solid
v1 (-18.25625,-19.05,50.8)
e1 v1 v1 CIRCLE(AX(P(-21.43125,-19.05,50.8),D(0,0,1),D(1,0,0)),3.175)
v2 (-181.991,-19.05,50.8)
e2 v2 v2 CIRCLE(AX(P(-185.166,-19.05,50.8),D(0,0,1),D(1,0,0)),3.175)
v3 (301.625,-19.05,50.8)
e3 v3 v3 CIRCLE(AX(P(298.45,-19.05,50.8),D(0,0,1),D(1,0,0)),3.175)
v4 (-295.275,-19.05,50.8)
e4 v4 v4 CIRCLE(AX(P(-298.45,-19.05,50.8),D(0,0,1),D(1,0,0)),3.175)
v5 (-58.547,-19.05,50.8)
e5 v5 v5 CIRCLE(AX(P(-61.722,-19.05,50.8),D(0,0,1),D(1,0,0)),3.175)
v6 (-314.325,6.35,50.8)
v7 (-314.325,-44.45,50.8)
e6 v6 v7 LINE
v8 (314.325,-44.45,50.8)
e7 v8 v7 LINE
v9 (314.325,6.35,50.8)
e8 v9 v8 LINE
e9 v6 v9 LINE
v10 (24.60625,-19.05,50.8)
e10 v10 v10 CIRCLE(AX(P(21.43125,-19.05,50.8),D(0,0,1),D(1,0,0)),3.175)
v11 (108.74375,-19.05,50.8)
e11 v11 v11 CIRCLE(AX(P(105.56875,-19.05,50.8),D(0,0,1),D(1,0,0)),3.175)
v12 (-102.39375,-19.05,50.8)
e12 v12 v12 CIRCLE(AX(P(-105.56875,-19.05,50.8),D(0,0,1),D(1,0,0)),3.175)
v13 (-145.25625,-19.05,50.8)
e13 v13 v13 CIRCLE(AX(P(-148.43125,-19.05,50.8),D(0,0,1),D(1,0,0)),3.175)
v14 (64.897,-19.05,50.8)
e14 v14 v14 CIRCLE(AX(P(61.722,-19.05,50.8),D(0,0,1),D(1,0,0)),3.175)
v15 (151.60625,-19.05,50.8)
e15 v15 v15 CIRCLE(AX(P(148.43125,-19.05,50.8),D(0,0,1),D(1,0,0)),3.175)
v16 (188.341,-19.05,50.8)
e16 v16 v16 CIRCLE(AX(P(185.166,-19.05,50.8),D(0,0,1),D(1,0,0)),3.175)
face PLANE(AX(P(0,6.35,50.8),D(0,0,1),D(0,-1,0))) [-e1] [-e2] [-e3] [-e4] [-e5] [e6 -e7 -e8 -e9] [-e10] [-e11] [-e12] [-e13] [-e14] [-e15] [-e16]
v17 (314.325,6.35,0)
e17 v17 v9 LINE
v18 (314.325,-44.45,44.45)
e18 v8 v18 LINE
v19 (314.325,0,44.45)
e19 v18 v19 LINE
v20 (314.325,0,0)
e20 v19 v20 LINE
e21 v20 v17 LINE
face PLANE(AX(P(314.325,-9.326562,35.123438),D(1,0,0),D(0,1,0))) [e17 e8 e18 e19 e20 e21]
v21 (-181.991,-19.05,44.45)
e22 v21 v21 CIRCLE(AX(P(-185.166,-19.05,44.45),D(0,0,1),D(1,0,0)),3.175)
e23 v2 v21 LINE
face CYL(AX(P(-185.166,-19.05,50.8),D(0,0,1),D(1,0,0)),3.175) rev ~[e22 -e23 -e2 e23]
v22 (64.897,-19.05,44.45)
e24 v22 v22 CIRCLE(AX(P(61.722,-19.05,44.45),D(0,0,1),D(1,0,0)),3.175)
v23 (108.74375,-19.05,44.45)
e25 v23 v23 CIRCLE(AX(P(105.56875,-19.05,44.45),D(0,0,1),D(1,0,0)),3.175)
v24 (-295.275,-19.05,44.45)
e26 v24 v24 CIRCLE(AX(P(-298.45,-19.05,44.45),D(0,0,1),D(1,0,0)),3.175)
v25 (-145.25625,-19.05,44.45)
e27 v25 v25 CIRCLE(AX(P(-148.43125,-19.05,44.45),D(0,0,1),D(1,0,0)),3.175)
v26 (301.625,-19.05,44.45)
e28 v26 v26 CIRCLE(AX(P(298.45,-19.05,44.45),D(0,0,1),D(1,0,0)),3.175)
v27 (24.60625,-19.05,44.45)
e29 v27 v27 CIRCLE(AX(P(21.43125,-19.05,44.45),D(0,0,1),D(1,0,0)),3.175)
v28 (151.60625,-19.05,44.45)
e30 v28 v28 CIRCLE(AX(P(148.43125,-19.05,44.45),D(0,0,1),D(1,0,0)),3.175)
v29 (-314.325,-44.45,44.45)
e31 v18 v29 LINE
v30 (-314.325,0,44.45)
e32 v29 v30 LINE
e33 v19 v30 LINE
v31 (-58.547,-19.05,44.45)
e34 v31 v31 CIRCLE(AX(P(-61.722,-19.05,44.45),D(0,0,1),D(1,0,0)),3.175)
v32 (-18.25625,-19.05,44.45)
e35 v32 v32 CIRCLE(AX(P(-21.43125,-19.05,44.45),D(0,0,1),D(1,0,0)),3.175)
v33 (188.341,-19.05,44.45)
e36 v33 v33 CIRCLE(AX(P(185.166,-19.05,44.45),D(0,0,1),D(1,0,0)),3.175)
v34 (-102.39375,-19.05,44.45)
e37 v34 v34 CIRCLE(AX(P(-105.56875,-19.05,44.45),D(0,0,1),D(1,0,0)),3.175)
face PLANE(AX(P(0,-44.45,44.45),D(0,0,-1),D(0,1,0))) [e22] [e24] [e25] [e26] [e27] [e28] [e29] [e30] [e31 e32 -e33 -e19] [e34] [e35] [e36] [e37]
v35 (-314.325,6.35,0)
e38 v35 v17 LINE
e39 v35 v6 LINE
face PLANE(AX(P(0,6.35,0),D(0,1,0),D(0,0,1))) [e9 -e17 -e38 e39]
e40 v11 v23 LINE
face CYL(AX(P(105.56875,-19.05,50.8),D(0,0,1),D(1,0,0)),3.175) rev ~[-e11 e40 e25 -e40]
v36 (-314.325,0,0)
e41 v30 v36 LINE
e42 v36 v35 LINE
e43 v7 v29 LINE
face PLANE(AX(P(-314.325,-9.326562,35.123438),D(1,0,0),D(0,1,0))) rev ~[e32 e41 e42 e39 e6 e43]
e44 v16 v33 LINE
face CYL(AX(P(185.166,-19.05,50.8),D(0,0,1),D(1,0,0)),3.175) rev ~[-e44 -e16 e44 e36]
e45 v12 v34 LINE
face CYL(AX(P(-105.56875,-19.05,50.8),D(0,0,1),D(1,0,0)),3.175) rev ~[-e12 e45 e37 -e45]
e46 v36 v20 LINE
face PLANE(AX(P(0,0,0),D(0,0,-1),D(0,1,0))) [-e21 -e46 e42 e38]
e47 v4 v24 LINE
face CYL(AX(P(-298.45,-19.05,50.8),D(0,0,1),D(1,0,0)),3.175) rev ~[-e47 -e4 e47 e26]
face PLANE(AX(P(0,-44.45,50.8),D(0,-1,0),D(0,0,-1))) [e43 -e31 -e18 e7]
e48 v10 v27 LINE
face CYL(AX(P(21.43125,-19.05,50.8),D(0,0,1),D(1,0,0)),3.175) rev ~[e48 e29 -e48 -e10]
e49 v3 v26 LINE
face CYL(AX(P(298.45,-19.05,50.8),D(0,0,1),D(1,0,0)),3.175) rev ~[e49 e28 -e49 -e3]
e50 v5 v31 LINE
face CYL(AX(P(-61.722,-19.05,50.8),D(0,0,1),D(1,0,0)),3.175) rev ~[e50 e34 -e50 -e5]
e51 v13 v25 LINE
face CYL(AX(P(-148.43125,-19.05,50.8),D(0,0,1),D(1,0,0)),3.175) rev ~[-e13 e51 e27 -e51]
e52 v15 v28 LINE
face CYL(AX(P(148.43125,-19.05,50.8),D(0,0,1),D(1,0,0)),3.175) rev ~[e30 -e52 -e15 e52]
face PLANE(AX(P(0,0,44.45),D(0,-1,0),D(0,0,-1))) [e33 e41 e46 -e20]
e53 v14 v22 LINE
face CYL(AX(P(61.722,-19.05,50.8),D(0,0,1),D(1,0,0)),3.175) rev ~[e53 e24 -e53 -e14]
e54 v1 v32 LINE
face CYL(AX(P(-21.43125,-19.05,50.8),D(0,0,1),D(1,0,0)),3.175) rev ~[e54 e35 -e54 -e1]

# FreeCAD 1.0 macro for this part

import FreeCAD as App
import Part
import Sketcher

V = App.Vector
Q = App.Units.Quantity

doc = App.newDocument("Part")
body = doc.addObject("PartDesign::Body", "Body")

sketch1 = body.newObject("Sketcher::SketchObject", "Sketch")
sketch1.AttachmentSupport = (doc.getObject("YZ_Plane"), [""])
sketch1.MapMode = "FlatFace"
sketch1.addGeometry([
    Part.LineSegment(V(0, 44, 0), V(0, 0, 0)),
    Part.LineSegment(V(0, 0, 0), V(6, 0, 0)),
    Part.LineSegment(V(6, 0, 0), V(6, 51, 0)),
    Part.LineSegment(V(6, 51, 0), V(-44, 51, 0)),
    Part.LineSegment(V(-44, 51, 0), V(-44, 44, 0)),
    Part.LineSegment(V(-44, 44, 0), V(0, 44, 0)),
], False)
sketch1.addConstraint([
    Sketcher.Constraint("Coincident", 0, 2, 1, 1),
    Sketcher.Constraint("Coincident", 1, 2, 2, 1),
    Sketcher.Constraint("Coincident", 2, 2, 3, 1),
    Sketcher.Constraint("Coincident", 3, 2, 4, 1),
    Sketcher.Constraint("Coincident", 4, 2, 5, 1),
    Sketcher.Constraint("Coincident", 5, 2, 0, 1),
    Sketcher.Constraint("Vertical", 0),
    Sketcher.Constraint("Horizontal", 1),
    Sketcher.Constraint("Vertical", 2),
    Sketcher.Constraint("Horizontal", 3),
    Sketcher.Constraint("Vertical", 4),
    Sketcher.Constraint("Horizontal", 5),
    Sketcher.Constraint("Coincident", 0, 2, -1, 1),
    Sketcher.Constraint("Equal", 5, 0),
    Sketcher.Constraint("Equal", 3, 2),
    Sketcher.Constraint("DistanceX", 3, 2, 3, 1, Q("2 in")),
    Sketcher.Constraint("DistanceX", 1, 1, 1, 2, Q("0.25 in")),
])
pad1 = body.newObject("PartDesign::Pad", "Pad")
pad1.Profile = sketch1
pad1.Length = Q("24.75 in")
pad1.Midplane = True

sketch2 = body.newObject("Sketcher::SketchObject", "Sketch001")
sketch2.AttachmentSupport = (doc.getObject("XY_Plane"), [""])
sketch2.MapMode = "FlatFace"
sketch2.AttachmentOffset = App.Placement(V(0, 0, 2 * 25.4), App.Rotation())
sketch2.addGeometry([
    Part.Circle(V(-298.4, -19.1, 0), V(0, 0, 1), 3.2),
    Part.Circle(V(-105.6, -19.1, 0), V(0, 0, 1), 3.2),
    Part.Circle(V(298.4, -19.1, 0), V(0, 0, 1), 3.2),
    Part.Circle(V(-148.4, -19.1, 0), V(0, 0, 1), 3.2),
    Part.Circle(V(-21.4, -19.1, 0), V(0, 0, 1), 3.2),
    Part.Circle(V(21.4, -19.1, 0), V(0, 0, 1), 3.2),
    Part.Circle(V(105.6, -19.1, 0), V(0, 0, 1), 3.2),
    Part.Circle(V(148.4, -19.1, 0), V(0, 0, 1), 3.2),
], False)
sketch2.addConstraint([
    Sketcher.Constraint("Equal", 0, 1),
    Sketcher.Constraint("Equal", 1, 2),
    Sketcher.Constraint("Equal", 2, 3),
    Sketcher.Constraint("Equal", 3, 4),
    Sketcher.Constraint("Equal", 4, 5),
    Sketcher.Constraint("Equal", 5, 6),
    Sketcher.Constraint("Equal", 6, 7),
    Sketcher.Constraint("Symmetric", 0, 3, 2, 3, -2),
    Sketcher.Constraint("Symmetric", 4, 3, 5, 3, -2),
    Sketcher.Constraint("Symmetric", 1, 3, 6, 3, -2),
    Sketcher.Constraint("Symmetric", 3, 3, 7, 3, -2),
    Sketcher.Constraint("Horizontal", 0, 3, 1, 3),
    Sketcher.Constraint("Horizontal", 2, 3, 3, 3),
    Sketcher.Constraint("Horizontal", 3, 3, 4, 3),
    Sketcher.Constraint("Diameter", 0, Q("0.25 in")),
    Sketcher.Constraint("DistanceX", 3, 3, 4, 3, Q("5 in")),
    Sketcher.Constraint("DistanceX", 1, 3, 5, 3, Q("5 in")),
    Sketcher.Constraint("DistanceX", 0, 3, 2, 3, Q("23.5 in")),
    Sketcher.Constraint("DistanceY", 0, 3, -1, 1, Q("0.75 in")),
    Sketcher.Constraint("DistanceX", 1, 3, -1, 1, Q("4.15625 in")),
])
pocket1 = body.newObject("PartDesign::Pocket", "Pocket")
pocket1.Profile = sketch2
pocket1.Type = "ThroughAll"

sketch3 = body.newObject("Sketcher::SketchObject", "Sketch002")
sketch3.AttachmentSupport = (doc.getObject("XY_Plane"), [""])
sketch3.MapMode = "FlatFace"
sketch3.AttachmentOffset = App.Placement(V(0, 0, 2 * 25.4), App.Rotation())
sketch3.addGeometry([
    Part.Circle(V(-185.2, -19.1, 0), V(0, 0, 1), 3.2),
    Part.Circle(V(-61.7, -19.1, 0), V(0, 0, 1), 3.2),
    Part.Circle(V(61.7, -19.1, 0), V(0, 0, 1), 3.2),
    Part.Circle(V(185.2, -19.1, 0), V(0, 0, 1), 3.2),
], False)
sketch3.addConstraint([
    Sketcher.Constraint("Equal", 0, 1),
    Sketcher.Constraint("Equal", 1, 2),
    Sketcher.Constraint("Equal", 2, 3),
    Sketcher.Constraint("Symmetric", 1, 3, 2, 3, -2),
    Sketcher.Constraint("Symmetric", 0, 3, 3, 3, -2),
    Sketcher.Constraint("Horizontal", 0, 3, 1, 3),
    Sketcher.Constraint("Diameter", 0, Q("0.25 in")),
    Sketcher.Constraint("DistanceX", 0, 3, -1, 1, Q("7.29 in")),
    Sketcher.Constraint("DistanceY", 0, 3, -1, 1, Q("0.75 in")),
    Sketcher.Constraint("DistanceX", 1, 3, -1, 1, Q("2.43 in")),
])
pocket2 = body.newObject("PartDesign::Pocket", "Pocket001")
pocket2.Profile = sketch3
pocket2.Type = "ThroughAll"

doc.recompute()
